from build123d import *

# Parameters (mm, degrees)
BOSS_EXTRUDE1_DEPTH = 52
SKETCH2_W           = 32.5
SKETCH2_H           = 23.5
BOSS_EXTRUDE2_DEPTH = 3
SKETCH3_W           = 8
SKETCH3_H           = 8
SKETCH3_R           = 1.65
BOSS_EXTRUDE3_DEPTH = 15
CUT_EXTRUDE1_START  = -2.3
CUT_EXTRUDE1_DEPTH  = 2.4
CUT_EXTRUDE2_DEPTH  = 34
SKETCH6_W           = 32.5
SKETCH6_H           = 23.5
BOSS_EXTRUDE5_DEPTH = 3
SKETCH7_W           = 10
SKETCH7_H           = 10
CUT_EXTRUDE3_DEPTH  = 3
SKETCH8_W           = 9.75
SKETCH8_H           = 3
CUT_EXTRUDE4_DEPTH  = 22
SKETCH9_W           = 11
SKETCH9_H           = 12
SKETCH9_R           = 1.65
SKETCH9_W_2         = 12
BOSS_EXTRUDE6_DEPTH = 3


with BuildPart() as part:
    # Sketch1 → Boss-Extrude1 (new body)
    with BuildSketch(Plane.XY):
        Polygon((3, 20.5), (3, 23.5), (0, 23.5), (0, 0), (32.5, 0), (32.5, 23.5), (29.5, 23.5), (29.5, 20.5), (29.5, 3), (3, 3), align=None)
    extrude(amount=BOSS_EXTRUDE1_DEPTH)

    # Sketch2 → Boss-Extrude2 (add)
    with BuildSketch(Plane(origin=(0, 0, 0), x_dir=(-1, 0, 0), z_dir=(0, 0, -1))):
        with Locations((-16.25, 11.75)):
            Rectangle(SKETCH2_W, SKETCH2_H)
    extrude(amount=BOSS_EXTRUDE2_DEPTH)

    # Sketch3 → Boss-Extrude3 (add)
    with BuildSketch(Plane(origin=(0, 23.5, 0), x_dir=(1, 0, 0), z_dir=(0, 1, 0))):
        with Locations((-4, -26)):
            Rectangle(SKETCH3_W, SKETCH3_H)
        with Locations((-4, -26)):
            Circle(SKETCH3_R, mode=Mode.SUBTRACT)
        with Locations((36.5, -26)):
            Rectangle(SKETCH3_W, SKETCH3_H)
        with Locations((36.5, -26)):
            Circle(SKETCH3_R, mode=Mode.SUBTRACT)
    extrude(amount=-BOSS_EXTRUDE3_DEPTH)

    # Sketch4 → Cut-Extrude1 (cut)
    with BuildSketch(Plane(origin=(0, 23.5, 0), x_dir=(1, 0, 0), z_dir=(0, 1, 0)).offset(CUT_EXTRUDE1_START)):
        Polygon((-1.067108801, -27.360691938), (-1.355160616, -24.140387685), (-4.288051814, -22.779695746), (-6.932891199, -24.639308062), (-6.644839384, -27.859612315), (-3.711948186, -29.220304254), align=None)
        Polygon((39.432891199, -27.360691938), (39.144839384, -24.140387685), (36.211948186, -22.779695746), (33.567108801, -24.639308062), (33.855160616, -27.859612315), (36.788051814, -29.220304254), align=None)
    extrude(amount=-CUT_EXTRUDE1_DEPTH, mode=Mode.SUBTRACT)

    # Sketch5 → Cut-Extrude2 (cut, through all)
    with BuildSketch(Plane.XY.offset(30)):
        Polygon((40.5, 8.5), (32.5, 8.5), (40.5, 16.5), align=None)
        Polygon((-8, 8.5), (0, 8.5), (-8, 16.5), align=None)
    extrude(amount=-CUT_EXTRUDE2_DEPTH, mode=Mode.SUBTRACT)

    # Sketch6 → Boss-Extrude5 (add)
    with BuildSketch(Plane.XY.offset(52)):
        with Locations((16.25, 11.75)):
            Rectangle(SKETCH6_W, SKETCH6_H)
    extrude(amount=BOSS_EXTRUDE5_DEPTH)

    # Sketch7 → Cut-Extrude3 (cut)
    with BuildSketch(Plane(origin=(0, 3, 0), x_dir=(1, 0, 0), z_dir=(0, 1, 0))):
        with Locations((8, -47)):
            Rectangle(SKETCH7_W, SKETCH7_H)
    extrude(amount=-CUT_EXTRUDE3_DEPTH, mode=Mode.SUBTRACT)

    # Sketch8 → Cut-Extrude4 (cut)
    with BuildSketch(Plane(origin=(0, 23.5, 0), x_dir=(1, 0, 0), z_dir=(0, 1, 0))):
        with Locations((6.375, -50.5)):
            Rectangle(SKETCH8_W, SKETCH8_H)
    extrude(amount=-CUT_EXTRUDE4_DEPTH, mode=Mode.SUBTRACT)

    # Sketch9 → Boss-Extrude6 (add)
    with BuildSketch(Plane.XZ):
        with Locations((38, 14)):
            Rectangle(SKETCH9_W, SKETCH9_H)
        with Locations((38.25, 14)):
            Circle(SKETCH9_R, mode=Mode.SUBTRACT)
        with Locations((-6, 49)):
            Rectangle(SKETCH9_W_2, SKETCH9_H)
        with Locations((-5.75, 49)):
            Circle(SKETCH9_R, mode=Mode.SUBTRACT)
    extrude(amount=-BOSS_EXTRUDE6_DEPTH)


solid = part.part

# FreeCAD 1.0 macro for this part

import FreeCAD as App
import Part
import Sketcher
from FreeCAD import Vector
Q = App.Units.Quantity


def add_polygon(sketch, points):
    """Adds a closed chain of lines whose ends are joined by coincident constraints."""
    first, n = sketch.GeometryCount, len(points)
    for a, b in zip(points, points[1:] + points[:1]):
        sketch.addGeometry(Part.LineSegment(App.Vector(*a, 0), App.Vector(*b, 0)), False)
    for i in range(n):
        sketch.addConstraint(Sketcher.Constraint("Coincident", first + i, 2, first + (i + 1) % n, 1))

doc = App.newDocument("Part")
body = doc.addObject("PartDesign::Body", "Body")

# Sketch on XY plane
sketch1 = body.newObject("Sketcher::SketchObject", "Sketch")
sketch1.AttachmentSupport = (doc.getObject("XY_Plane"), [""])
sketch1.MapMode = "FlatFace"
add_polygon(sketch1, [(3, 23.5), (0, 23.5), (0, 0), (32.5, 0), (32.5, 23.5), (29.5, 23.5), (29.5, 3), (3, 3)])  # lines 0-7
sketch1.addConstraint([
    Sketcher.Constraint("Horizontal", 0),
    Sketcher.Constraint("Vertical", 1),
    Sketcher.Constraint("Horizontal", 2),
    Sketcher.Constraint("Vertical", 3),
    Sketcher.Constraint("Horizontal", 4),
    Sketcher.Constraint("Vertical", 5),
    Sketcher.Constraint("Horizontal", 6),
    Sketcher.Constraint("Vertical", 7),
    Sketcher.Constraint("Coincident", 1, 2, -1, 1),
    Sketcher.Constraint("Horizontal", 0, 2, 3, 2),
    Sketcher.Constraint("Equal", 0, 4),
    Sketcher.Constraint("DistanceX", 0, 2, 0, 1, Q("3 mm")),
    Sketcher.Constraint("DistanceX", 2, 1, 2, 2, Q("32.5 mm")),
    Sketcher.Constraint("DistanceY", 1, 2, 1, 1, Q("23.5 mm")),
    Sketcher.Constraint("DistanceY", 5, 2, 5, 1, Q("20.5 mm")),
])
pad1 = body.newObject("PartDesign::Pad", "Pad")
pad1.Profile = sketch1
pad1.Length = 52

# Sketch on XY plane
sketch2 = body.newObject("Sketcher::SketchObject", "Sketch001")
sketch2.AttachmentSupport = (doc.getObject("XY_Plane"), [""])
sketch2.MapMode = "FlatFace"
add_polygon(sketch2, [(32.5, 23.5), (32.5, 0), (0, 0), (0, 23.5)])  # lines 0-3
sketch2.addConstraint([
    Sketcher.Constraint("Vertical", 0),
    Sketcher.Constraint("Horizontal", 1),
    Sketcher.Constraint("Vertical", 2),
    Sketcher.Constraint("Horizontal", 3),
    Sketcher.Constraint("Coincident", 1, 2, -1, 1),
    Sketcher.Constraint("DistanceX", 1, 2, 1, 1, Q("32.5 mm")),
    Sketcher.Constraint("DistanceY", 0, 2, 0, 1, Q("23.5 mm")),
])
pad2 = body.newObject("PartDesign::Pad", "Pad001")
pad2.Profile = sketch2
pad2.Length = 3
pad2.Reversed = True

# Sketch on XZ plane
sketch3 = body.newObject("Sketcher::SketchObject", "Sketch002")
sketch3.AttachmentSupport = (doc.getObject("XZ_Plane"), [""])
sketch3.MapMode = "FlatFace"
sketch3.AttachmentOffset = App.Placement(Vector(0, 0, -23.5), App.Rotation())
add_polygon(sketch3, [(-8, 22), (-8, 30), (0, 30), (0, 22)])  # lines 0-3
sketch3.addGeometry(Part.Circle(Vector(-4, 26, 0), Vector(0, 0, 1), 1.65), False)  # 4
add_polygon(sketch3, [(32.5, 22), (32.5, 30), (40.5, 30), (40.5, 22)])  # lines 5-8
sketch3.addGeometry(Part.Circle(Vector(36.5, 26, 0), Vector(0, 0, 1), 1.65), False)  # 9
sketch3.addConstraint([
    Sketcher.Constraint("Vertical", 0),
    Sketcher.Constraint("Horizontal", 1),
    Sketcher.Constraint("Vertical", 2),
    Sketcher.Constraint("Horizontal", 3),
    Sketcher.Constraint("Vertical", 5),
    Sketcher.Constraint("Horizontal", 6),
    Sketcher.Constraint("Vertical", 7),
    Sketcher.Constraint("Horizontal", 8),
    Sketcher.Constraint("Equal", 4, 9),
    Sketcher.Constraint("PointOnObject", 1, 2, -2),
    Sketcher.Constraint("Horizontal", 4, 3, 9, 3),
    Sketcher.Constraint("Horizontal", 1, 2, 5, 2),
    Sketcher.Constraint("Horizontal", 3, 2, 7, 2),
    Sketcher.Constraint("Equal", 3, 6),
    Sketcher.Constraint("Equal", 8, 0),
    Sketcher.Constraint("Diameter", 4, Q("3.3 mm")),
    Sketcher.Constraint("DistanceX", 1, 1, 1, 2, Q("8 mm")),
    Sketcher.Constraint("DistanceX", 4, 3, -1, 1, Q("4 mm")),
    Sketcher.Constraint("DistanceY", -1, 1, 4, 3, Q("26 mm")),
    Sketcher.Constraint("DistanceY", -1, 1, 0, 2, Q("30 mm")),
    Sketcher.Constraint("DistanceX", 5, 2, 9, 3, Q("4 mm")),
    Sketcher.Constraint("DistanceX", -1, 1, 9, 3, Q("36.5 mm")),
])
pad3 = body.newObject("PartDesign::Pad", "Pad002")
pad3.Profile = sketch3
pad3.Length = 15

# Sketch on XZ plane
sketch4 = body.newObject("Sketcher::SketchObject", "Sketch003")
sketch4.AttachmentSupport = (doc.getObject("XZ_Plane"), [""])
sketch4.MapMode = "FlatFace"
sketch4.AttachmentOffset = App.Placement(Vector(0, 0, -21.2), App.Rotation())
add_polygon(sketch4, [(-1.067109, 27.360692), (-1.355161, 24.140388), (-4.288052, 22.779696), (-6.932891, 24.639308), (-6.644839, 27.859612), (-3.711948, 29.220304)])  # lines 0-5
add_polygon(sketch4, [(39.432891, 27.360692), (39.144839, 24.140388), (36.211948, 22.779696), (33.567109, 24.639308), (33.855161, 27.859612), (36.788052, 29.220304)])  # lines 6-11
sketch4.addConstraint([
    Sketcher.Constraint("Parallel", 0, 3),
    Sketcher.Constraint("Parallel", 1, 4),
    Sketcher.Constraint("Parallel", 2, 5),
    Sketcher.Constraint("Parallel", 3, 6),
    Sketcher.Constraint("Parallel", 4, 7),
    Sketcher.Constraint("Parallel", 5, 8),
    Sketcher.Constraint("Parallel", 6, 9),
    Sketcher.Constraint("Parallel", 7, 10),
    Sketcher.Constraint("Parallel", 8, 11),
    Sketcher.Constraint("Horizontal", 0, 2, 6, 2),
    Sketcher.Constraint("Horizontal", 1, 2, 7, 2),
    Sketcher.Constraint("Horizontal", 2, 2, 8, 2),
    Sketcher.Constraint("Horizontal", 3, 2, 9, 2),
    Sketcher.Constraint("Horizontal", 4, 2, 10, 2),
    Sketcher.Constraint("Equal", 0, 1),
    Sketcher.Constraint("Equal", 1, 2),
    Sketcher.Constraint("Equal", 2, 3),
    Sketcher.Constraint("DistanceX", 0, 2, 6, 2, Q("40.5 mm")),
    Sketcher.Constraint("Distance", 0, Q("3.233162 mm")),
    Sketcher.Constraint("DistanceX", 0, 2, -1, 1, Q("1.355161 mm")),
    Sketcher.Constraint("DistanceX", 1, 2, -1, 1, Q("4.288052 mm")),
    Sketcher.Constraint("DistanceX", 2, 2, -1, 1, Q("6.932891 mm")),
    Sketcher.Constraint("DistanceY", -1, 1, 2, 2, Q("24.639308 mm")),
    Sketcher.Constraint("DistanceX", 3, 2, -1, 1, Q("6.644839 mm")),
])
pocket1 = body.newObject("PartDesign::Pocket", "Pocket")
pocket1.Profile = sketch4
pocket1.Length = 2.4
pocket1.Reversed = True

# Sketch on XY plane
sketch5 = body.newObject("Sketcher::SketchObject", "Sketch004")
sketch5.AttachmentSupport = (doc.getObject("XY_Plane"), [""])
sketch5.MapMode = "FlatFace"
sketch5.AttachmentOffset = App.Placement(Vector(0, 0, 30), App.Rotation())
add_polygon(sketch5, [(32.5, 8.5), (40.5, 8.5), (40.5, 16.5)])  # lines 0-2
add_polygon(sketch5, [(-8, 8.5), (0, 8.5), (-8, 16.5)])  # lines 3-5
sketch5.addConstraint([
    Sketcher.Constraint("Horizontal", 0),
    Sketcher.Constraint("Vertical", 1),
    Sketcher.Constraint("Horizontal", 3),
    Sketcher.Constraint("Vertical", 5),
    Sketcher.Constraint("PointOnObject", 3, 2, -2),
    Sketcher.Constraint("Perpendicular", 2, 4),
    Sketcher.Constraint("Horizontal", 2, 2, 3, 2),
    Sketcher.Constraint("Horizontal", 1, 2, 4, 2),
    Sketcher.Constraint("Equal", 0, 3),
    Sketcher.Constraint("DistanceX", 0, 1, 0, 2, Q("8 mm")),
    Sketcher.Constraint("DistanceX", -1, 1, 0, 2, Q("40.5 mm")),
    Sketcher.Constraint("DistanceY", -1, 1, 0, 2, Q("8.5 mm")),
])
pocket2 = body.newObject("PartDesign::Pocket", "Pocket001")
pocket2.Profile = sketch5
pocket2.Type = "ThroughAll"

# Sketch on XY plane
sketch6 = body.newObject("Sketcher::SketchObject", "Sketch005")
sketch6.AttachmentSupport = (doc.getObject("XY_Plane"), [""])
sketch6.MapMode = "FlatFace"
sketch6.AttachmentOffset = App.Placement(Vector(0, 0, 52), App.Rotation())
add_polygon(sketch6, [(0, 23.5), (0, 0), (32.5, 0), (32.5, 23.5)])  # lines 0-3
sketch6.addConstraint([
    Sketcher.Constraint("Vertical", 0),
    Sketcher.Constraint("Horizontal", 1),
    Sketcher.Constraint("Vertical", 2),
    Sketcher.Constraint("Horizontal", 3),
    Sketcher.Constraint("Coincident", 0, 2, -1, 1),
    Sketcher.Constraint("DistanceX", 1, 1, 1, 2, Q("32.5 mm")),
    Sketcher.Constraint("DistanceY", 0, 2, 0, 1, Q("23.5 mm")),
])
pad4 = body.newObject("PartDesign::Pad", "Pad003")
pad4.Profile = sketch6
pad4.Length = 3

# Sketch on XZ plane
sketch7 = body.newObject("Sketcher::SketchObject", "Sketch006")
sketch7.AttachmentSupport = (doc.getObject("XZ_Plane"), [""])
sketch7.MapMode = "FlatFace"
sketch7.AttachmentOffset = App.Placement(Vector(0, 0, -3), App.Rotation())
add_polygon(sketch7, [(3, 42), (3, 52), (13, 52), (13, 42)])  # lines 0-3
sketch7.addConstraint([
    Sketcher.Constraint("Vertical", 0),
    Sketcher.Constraint("Horizontal", 1),
    Sketcher.Constraint("Vertical", 2),
    Sketcher.Constraint("Horizontal", 3),
    Sketcher.Constraint("Equal", 3, 0),
    Sketcher.Constraint("DistanceX", 1, 1, 1, 2, Q("10 mm")),
    Sketcher.Constraint("DistanceX", -1, 1, 0, 2, Q("3 mm")),
    Sketcher.Constraint("DistanceY", -1, 1, 0, 2, Q("52 mm")),
])
pocket3 = body.newObject("PartDesign::Pocket", "Pocket002")
pocket3.Profile = sketch7
pocket3.Length = 3
pocket3.Reversed = True

# Sketch on XZ plane
sketch8 = body.newObject("Sketcher::SketchObject", "Sketch007")
sketch8.AttachmentSupport = (doc.getObject("XZ_Plane"), [""])
sketch8.MapMode = "FlatFace"
sketch8.AttachmentOffset = App.Placement(Vector(0, 0, -23.5), App.Rotation())
add_polygon(sketch8, [(1.5, 49), (1.5, 52), (11.25, 52), (11.25, 49)])  # lines 0-3
sketch8.addConstraint([
    Sketcher.Constraint("Vertical", 0),
    Sketcher.Constraint("Horizontal", 1),
    Sketcher.Constraint("Vertical", 2),
    Sketcher.Constraint("Horizontal", 3),
    Sketcher.Constraint("DistanceY", 0, 1, 0, 2, Q("3 mm")),
    Sketcher.Constraint("DistanceY", -1, 1, 0, 2, Q("52 mm")),
    Sketcher.Constraint("DistanceX", 1, 1, 1, 2, Q("9.75 mm")),
    Sketcher.Constraint("DistanceX", -1, 1, 0, 2, Q("1.5 mm")),
])
pocket4 = body.newObject("PartDesign::Pocket", "Pocket003")
pocket4.Profile = sketch8
pocket4.Length = 22
pocket4.Reversed = True

# Sketch on XZ plane
sketch9 = body.newObject("Sketcher::SketchObject", "Sketch008")
sketch9.AttachmentSupport = (doc.getObject("XZ_Plane"), [""])
sketch9.MapMode = "FlatFace"
add_polygon(sketch9, [(32.5, 20), (32.5, 8), (43.5, 8), (43.5, 20)])  # lines 0-3
sketch9.addGeometry(Part.Circle(Vector(38.25, 14, 0), Vector(0, 0, 1), 1.65), False)  # 4
add_polygon(sketch9, [(-12, 55), (-12, 43), (0, 43), (0, 55)])  # lines 5-8
sketch9.addGeometry(Part.Circle(Vector(-5.75, 49, 0), Vector(0, 0, 1), 1.65), False)  # 9
sketch9.addConstraint([
    Sketcher.Constraint("Vertical", 0),
    Sketcher.Constraint("Horizontal", 1),
    Sketcher.Constraint("Vertical", 2),
    Sketcher.Constraint("Horizontal", 3),
    Sketcher.Constraint("Vertical", 5),
    Sketcher.Constraint("Horizontal", 6),
    Sketcher.Constraint("Vertical", 7),
    Sketcher.Constraint("Horizontal", 8),
    Sketcher.Constraint("Equal", 4, 9),
    Sketcher.Constraint("PointOnObject", 6, 2, -2),
    Sketcher.Constraint("Equal", 8, 0),
    Sketcher.Constraint("Equal", 2, 5),
    Sketcher.Constraint("Diameter", 4, Q("3.3 mm")),
    Sketcher.Constraint("DistanceX", 1, 1, 1, 2, Q("11 mm")),
    Sketcher.Constraint("DistanceX", 6, 1, 6, 2, Q("12 mm")),
    Sketcher.Constraint("DistanceY", -1, 1, 4, 3, Q("14 mm")),
    Sketcher.Constraint("DistanceY", -1, 1, 9, 3, Q("49 mm")),
    Sketcher.Constraint("DistanceY", -1, 1, 0, 2, Q("8 mm")),
    Sketcher.Constraint("DistanceY", -1, 1, 5, 2, Q("43 mm")),
    Sketcher.Constraint("DistanceX", 9, 3, 4, 3, Q("44 mm")),
    Sketcher.Constraint("DistanceX", -1, 1, 0, 2, Q("32.5 mm")),
    Sketcher.Constraint("DistanceX", -1, 1, 4, 3, Q("38.25 mm")),
])
pad5 = body.newObject("PartDesign::Pad", "Pad004")
pad5.Profile = sketch9
pad5.Length = 3
pad5.Reversed = True

doc.recompute()
